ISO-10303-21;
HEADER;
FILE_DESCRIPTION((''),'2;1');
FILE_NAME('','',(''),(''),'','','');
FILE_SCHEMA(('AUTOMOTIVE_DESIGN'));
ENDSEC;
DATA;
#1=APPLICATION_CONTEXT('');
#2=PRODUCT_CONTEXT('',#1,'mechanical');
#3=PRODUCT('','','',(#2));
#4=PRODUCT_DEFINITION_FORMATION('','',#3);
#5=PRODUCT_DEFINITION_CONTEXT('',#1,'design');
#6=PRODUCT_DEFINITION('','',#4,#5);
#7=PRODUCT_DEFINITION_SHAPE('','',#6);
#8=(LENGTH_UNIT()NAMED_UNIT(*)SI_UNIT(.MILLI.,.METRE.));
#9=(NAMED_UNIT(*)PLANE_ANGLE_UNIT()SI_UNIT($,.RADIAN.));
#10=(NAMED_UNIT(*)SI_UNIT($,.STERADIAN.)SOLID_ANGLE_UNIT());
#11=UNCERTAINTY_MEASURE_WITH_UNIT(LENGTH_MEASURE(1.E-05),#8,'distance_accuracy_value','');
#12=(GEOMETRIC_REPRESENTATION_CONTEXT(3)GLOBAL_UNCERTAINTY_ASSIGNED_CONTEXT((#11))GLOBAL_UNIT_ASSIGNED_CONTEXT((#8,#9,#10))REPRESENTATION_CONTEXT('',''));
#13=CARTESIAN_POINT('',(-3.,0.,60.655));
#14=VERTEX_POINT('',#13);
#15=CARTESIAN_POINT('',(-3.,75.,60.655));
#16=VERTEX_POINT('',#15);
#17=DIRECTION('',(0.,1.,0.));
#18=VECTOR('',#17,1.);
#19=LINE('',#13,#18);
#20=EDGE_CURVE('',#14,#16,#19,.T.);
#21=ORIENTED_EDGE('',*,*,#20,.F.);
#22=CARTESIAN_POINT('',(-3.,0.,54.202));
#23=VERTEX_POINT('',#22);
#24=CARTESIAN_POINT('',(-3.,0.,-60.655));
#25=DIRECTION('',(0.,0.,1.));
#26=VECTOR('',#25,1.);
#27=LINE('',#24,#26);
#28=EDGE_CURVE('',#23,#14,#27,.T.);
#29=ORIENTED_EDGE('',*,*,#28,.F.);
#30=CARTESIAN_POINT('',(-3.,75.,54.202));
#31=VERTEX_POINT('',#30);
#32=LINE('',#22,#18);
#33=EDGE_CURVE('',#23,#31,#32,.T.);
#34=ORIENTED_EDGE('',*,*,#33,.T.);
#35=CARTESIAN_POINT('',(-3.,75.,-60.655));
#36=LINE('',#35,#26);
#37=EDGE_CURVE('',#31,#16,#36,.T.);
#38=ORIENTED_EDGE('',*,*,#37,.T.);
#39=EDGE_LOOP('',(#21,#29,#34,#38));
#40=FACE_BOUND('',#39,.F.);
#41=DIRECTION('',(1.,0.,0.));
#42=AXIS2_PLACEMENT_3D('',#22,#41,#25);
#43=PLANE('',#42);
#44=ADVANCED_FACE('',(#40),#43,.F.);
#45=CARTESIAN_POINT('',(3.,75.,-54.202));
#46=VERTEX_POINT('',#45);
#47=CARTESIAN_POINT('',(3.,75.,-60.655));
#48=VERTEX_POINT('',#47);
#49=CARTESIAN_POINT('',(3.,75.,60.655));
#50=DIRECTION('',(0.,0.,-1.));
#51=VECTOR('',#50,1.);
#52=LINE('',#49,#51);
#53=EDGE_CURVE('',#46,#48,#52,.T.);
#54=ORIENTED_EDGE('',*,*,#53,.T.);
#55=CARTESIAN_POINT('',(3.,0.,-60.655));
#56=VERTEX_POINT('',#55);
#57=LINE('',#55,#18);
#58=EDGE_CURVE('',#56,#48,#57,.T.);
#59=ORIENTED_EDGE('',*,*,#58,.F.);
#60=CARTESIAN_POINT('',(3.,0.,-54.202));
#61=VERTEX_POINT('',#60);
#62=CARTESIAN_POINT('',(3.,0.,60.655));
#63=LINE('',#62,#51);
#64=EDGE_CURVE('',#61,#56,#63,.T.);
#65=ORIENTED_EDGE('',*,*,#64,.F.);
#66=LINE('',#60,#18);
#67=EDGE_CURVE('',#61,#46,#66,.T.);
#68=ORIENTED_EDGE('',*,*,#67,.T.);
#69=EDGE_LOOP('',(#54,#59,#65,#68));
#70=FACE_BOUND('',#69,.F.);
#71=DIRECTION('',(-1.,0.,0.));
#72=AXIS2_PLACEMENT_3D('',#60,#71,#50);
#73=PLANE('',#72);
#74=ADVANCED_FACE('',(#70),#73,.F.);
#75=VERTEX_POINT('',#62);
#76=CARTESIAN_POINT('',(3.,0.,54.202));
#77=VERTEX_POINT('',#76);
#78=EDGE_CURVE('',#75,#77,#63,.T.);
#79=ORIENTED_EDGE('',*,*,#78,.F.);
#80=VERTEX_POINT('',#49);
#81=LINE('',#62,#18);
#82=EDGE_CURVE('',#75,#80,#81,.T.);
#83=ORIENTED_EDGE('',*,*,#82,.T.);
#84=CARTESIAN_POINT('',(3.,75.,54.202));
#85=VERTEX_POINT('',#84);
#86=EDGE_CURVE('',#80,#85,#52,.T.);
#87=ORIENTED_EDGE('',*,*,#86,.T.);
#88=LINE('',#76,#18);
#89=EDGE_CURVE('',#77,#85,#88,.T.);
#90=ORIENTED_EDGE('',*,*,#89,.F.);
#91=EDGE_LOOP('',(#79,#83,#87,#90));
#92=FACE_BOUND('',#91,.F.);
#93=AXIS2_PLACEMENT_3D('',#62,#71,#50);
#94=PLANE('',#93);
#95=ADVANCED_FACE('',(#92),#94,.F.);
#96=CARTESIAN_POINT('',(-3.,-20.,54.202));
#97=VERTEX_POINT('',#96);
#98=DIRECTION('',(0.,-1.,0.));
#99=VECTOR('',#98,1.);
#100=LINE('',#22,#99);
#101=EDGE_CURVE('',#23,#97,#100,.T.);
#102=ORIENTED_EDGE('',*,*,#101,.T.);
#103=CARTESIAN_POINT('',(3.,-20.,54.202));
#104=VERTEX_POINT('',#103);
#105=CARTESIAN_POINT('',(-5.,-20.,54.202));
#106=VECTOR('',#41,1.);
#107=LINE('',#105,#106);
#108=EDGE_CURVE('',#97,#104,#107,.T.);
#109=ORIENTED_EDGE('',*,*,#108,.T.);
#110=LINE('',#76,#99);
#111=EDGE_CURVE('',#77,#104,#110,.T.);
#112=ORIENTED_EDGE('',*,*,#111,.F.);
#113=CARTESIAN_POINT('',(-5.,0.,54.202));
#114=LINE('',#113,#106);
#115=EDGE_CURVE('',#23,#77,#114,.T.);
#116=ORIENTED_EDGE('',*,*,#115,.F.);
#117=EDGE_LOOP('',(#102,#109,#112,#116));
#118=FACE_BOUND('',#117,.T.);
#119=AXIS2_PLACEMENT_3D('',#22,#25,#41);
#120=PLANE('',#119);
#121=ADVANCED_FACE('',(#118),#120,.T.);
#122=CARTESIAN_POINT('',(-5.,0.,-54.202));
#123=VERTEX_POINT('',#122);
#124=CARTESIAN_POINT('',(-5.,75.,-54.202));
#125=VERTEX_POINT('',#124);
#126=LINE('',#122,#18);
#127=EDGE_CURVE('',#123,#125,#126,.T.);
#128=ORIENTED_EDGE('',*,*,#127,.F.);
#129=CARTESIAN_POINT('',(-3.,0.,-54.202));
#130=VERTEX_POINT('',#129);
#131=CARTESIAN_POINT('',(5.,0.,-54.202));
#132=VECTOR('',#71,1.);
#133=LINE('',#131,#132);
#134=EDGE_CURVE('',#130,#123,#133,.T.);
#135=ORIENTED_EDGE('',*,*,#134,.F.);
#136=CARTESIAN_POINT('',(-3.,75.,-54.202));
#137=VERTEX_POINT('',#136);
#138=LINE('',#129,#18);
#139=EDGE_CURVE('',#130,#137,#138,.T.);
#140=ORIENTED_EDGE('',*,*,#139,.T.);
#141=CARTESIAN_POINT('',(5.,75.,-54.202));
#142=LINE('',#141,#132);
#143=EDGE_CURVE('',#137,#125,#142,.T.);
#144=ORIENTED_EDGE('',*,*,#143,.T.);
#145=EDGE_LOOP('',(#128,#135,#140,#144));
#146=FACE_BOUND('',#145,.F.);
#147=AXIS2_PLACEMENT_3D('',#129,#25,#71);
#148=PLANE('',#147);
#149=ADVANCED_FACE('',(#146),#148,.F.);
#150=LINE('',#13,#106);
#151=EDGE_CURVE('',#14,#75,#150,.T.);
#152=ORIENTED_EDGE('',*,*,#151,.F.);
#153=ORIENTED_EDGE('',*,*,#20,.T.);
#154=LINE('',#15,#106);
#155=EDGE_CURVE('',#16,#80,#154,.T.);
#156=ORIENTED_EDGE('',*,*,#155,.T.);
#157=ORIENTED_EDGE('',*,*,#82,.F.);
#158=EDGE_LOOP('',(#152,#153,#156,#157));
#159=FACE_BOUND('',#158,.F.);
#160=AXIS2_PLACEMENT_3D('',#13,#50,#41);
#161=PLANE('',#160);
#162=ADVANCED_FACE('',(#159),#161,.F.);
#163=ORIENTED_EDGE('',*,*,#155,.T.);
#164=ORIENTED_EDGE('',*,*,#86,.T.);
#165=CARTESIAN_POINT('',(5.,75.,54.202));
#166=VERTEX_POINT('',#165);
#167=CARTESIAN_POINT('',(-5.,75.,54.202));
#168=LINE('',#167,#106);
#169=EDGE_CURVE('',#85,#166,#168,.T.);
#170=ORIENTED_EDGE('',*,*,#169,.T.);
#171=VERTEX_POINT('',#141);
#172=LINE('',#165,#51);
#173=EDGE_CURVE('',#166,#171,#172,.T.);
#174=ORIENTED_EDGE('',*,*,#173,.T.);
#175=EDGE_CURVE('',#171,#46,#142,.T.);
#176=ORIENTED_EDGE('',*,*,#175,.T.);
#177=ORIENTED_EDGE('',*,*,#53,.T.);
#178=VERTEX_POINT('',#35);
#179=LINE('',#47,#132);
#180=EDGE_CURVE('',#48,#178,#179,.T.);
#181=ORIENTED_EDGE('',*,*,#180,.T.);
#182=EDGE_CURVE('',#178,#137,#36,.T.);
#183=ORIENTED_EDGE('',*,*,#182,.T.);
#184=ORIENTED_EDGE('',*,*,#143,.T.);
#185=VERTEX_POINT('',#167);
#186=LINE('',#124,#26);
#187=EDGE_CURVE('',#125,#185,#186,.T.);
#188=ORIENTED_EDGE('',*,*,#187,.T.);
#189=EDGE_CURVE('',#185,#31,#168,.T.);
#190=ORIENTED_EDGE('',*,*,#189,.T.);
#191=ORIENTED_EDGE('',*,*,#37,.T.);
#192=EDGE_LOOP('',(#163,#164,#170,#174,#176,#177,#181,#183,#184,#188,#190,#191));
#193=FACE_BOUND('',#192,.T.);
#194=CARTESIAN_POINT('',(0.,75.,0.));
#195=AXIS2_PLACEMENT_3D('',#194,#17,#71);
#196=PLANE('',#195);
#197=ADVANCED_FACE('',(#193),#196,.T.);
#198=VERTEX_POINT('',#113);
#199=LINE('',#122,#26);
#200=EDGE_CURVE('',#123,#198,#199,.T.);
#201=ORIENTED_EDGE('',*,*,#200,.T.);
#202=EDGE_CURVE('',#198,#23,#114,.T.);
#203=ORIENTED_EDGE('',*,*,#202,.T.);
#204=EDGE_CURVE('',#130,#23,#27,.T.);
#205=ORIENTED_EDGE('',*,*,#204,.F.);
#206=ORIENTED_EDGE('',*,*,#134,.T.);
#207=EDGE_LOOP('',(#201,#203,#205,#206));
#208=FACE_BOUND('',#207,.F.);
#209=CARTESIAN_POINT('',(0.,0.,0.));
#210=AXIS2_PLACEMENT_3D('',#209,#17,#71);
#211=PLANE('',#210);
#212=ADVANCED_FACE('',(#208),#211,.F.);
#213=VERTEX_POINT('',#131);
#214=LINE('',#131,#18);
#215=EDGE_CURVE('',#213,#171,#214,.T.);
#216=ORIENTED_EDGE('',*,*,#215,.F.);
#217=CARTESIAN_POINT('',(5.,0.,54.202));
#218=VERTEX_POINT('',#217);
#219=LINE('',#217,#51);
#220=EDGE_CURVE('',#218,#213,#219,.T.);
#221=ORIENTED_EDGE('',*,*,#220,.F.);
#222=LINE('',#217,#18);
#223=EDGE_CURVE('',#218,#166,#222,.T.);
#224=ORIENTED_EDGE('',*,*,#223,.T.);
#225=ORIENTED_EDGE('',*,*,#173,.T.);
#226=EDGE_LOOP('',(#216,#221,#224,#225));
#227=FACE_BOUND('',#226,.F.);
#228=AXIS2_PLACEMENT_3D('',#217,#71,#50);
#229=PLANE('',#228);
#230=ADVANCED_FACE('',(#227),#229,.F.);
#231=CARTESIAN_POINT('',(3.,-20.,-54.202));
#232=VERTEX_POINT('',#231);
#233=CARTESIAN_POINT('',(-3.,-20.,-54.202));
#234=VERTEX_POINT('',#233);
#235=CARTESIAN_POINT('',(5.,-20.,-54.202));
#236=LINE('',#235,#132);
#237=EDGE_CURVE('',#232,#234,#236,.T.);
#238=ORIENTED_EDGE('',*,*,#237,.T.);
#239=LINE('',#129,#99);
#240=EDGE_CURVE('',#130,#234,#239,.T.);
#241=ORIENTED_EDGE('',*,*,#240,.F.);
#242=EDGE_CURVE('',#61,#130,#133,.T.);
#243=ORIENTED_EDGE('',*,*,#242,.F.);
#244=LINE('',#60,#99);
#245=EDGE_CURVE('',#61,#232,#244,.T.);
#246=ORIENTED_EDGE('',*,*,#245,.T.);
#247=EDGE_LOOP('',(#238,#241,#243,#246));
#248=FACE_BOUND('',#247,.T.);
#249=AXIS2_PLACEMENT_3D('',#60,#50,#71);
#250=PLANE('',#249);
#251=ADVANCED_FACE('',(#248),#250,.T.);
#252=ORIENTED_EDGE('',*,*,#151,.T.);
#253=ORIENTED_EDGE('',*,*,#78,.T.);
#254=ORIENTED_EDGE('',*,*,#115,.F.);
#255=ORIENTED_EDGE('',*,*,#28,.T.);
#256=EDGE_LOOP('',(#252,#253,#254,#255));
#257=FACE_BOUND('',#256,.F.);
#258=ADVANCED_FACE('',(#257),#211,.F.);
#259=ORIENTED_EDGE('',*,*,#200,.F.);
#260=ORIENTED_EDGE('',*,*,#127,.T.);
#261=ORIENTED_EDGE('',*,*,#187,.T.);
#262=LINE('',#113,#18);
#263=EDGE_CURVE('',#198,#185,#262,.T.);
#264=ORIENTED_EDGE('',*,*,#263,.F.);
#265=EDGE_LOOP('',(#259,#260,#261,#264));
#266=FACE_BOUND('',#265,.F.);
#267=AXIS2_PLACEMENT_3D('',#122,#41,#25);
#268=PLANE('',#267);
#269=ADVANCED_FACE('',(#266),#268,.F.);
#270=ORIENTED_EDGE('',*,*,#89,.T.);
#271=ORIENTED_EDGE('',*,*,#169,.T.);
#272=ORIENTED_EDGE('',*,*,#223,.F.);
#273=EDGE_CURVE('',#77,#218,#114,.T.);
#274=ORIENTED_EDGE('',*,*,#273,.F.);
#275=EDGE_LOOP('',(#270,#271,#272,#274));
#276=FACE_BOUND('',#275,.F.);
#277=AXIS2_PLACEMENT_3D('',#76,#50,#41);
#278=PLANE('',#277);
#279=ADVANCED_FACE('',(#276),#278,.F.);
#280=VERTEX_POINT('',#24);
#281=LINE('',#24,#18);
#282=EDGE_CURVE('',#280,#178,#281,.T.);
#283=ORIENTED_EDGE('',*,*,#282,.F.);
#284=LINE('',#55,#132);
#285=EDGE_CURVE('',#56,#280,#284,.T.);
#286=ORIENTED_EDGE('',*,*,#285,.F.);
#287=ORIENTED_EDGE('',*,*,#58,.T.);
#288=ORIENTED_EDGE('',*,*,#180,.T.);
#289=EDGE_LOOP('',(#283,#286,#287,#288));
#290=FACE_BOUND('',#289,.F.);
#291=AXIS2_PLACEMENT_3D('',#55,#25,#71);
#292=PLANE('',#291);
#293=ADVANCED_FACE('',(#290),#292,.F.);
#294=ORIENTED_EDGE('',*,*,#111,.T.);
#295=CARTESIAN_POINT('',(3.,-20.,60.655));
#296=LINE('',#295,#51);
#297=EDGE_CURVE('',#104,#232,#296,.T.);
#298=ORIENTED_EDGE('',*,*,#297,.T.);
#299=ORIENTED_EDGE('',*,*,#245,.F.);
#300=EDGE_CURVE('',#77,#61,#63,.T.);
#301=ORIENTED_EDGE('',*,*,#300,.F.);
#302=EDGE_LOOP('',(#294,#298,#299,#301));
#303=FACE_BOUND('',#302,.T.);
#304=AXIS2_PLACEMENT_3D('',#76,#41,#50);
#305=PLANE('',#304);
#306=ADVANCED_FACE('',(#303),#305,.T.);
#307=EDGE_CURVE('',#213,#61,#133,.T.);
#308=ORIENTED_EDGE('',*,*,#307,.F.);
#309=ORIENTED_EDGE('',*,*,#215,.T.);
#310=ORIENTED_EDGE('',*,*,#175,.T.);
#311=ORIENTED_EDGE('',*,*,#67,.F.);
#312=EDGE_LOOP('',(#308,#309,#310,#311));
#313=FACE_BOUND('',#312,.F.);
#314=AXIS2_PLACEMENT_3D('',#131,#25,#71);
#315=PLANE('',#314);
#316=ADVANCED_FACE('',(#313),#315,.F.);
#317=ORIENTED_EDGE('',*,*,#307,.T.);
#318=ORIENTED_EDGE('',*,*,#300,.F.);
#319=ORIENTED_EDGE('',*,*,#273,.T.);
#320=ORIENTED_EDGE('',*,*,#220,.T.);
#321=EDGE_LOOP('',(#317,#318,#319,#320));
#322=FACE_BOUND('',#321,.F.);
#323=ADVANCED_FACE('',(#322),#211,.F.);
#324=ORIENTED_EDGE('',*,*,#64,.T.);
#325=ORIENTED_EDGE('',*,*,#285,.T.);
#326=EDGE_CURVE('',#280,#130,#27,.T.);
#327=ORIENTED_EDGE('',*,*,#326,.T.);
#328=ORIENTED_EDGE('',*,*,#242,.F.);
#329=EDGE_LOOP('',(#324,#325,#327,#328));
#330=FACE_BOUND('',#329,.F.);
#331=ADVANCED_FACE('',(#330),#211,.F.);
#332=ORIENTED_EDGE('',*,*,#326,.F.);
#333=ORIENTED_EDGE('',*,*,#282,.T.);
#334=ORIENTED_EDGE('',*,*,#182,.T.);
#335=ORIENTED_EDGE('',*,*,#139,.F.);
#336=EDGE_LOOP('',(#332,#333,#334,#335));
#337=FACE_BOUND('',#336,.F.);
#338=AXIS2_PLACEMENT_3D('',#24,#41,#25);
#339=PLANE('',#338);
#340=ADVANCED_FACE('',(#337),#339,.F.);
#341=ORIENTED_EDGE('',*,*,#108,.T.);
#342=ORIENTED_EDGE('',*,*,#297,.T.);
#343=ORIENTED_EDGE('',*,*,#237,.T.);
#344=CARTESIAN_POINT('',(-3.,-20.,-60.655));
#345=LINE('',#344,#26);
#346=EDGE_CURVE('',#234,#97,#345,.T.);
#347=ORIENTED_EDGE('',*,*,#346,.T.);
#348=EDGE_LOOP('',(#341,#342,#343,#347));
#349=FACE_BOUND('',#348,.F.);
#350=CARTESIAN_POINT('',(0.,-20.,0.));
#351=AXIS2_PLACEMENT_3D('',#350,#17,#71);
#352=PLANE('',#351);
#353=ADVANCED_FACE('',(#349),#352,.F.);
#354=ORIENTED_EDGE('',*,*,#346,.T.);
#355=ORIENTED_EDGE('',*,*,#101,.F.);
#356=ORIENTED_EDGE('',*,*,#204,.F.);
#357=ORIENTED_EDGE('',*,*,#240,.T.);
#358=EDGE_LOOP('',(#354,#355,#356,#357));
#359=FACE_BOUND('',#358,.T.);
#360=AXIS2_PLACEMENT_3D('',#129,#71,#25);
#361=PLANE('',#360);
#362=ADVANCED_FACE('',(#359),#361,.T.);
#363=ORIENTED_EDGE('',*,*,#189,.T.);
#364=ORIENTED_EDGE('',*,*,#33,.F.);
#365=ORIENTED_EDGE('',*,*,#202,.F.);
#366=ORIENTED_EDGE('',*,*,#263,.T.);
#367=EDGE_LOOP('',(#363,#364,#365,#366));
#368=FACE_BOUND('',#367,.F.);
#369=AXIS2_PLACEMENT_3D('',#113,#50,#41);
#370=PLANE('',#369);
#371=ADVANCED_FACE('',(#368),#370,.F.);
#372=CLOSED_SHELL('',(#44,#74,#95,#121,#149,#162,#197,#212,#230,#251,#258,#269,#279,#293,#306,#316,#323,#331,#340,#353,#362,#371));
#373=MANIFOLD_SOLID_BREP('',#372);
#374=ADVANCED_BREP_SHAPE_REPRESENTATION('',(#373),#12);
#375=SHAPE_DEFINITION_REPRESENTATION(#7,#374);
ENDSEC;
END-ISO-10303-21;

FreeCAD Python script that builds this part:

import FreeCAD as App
import Part
import Sketcher

V = App.Vector

doc = App.newDocument("Part")
body = doc.addObject("PartDesign::Body", "Body")

# Sketch on XZ plane
sketch1 = body.newObject("Sketcher::SketchObject", "Sketch")
sketch1.AttachmentSupport = (doc.getObject("XZ_Plane"), [""])
sketch1.MapMode = "FlatFace"
sketch1.addGeometry(Part.LineSegment(V(-5, -54.2, 0), V(-5, 54.2, 0)), False)
sketch1.addGeometry(Part.LineSegment(V(-5, 54.2, 0), V(-3, 54.2, 0)), False)
sketch1.addGeometry(Part.LineSegment(V(-3, 54.2, 0), V(-3, 60.7, 0)), False)
sketch1.addGeometry(Part.LineSegment(V(-3, 60.7, 0), V(3, 60.7, 0)), False)
sketch1.addGeometry(Part.LineSegment(V(3, 60.7, 0), V(3, 54.2, 0)), False)
sketch1.addGeometry(Part.LineSegment(V(3, 54.2, 0), V(5, 54.2, 0)), False)
sketch1.addGeometry(Part.LineSegment(V(5, 54.2, 0), V(5, -54.2, 0)), False)
sketch1.addGeometry(Part.LineSegment(V(5, -54.2, 0), V(3, -54.2, 0)), False)
sketch1.addGeometry(Part.LineSegment(V(3, -54.2, 0), V(3, -60.7, 0)), False)
sketch1.addGeometry(Part.LineSegment(V(3, -60.7, 0), V(-3, -60.7, 0)), False)
sketch1.addGeometry(Part.LineSegment(V(-3, -60.7, 0), V(-3, -54.2, 0)), False)
sketch1.addGeometry(Part.LineSegment(V(-3, -54.2, 0), V(-5, -54.2, 0)), False)
sketch1.addConstraint(Sketcher.Constraint("Coincident", 0, 2, 1, 1))
sketch1.addConstraint(Sketcher.Constraint("Coincident", 1, 2, 2, 1))
sketch1.addConstraint(Sketcher.Constraint("Coincident", 2, 2, 3, 1))
sketch1.addConstraint(Sketcher.Constraint("Coincident", 3, 2, 4, 1))
sketch1.addConstraint(Sketcher.Constraint("Coincident", 4, 2, 5, 1))
sketch1.addConstraint(Sketcher.Constraint("Coincident", 5, 2, 6, 1))
sketch1.addConstraint(Sketcher.Constraint("Coincident", 6, 2, 7, 1))
sketch1.addConstraint(Sketcher.Constraint("Coincident", 7, 2, 8, 1))
sketch1.addConstraint(Sketcher.Constraint("Coincident", 8, 2, 9, 1))
sketch1.addConstraint(Sketcher.Constraint("Coincident", 9, 2, 10, 1))
sketch1.addConstraint(Sketcher.Constraint("Coincident", 10, 2, 11, 1))
sketch1.addConstraint(Sketcher.Constraint("Coincident", 11, 2, 0, 1))
sketch1.addConstraint(Sketcher.Constraint("Vertical", 0))
sketch1.addConstraint(Sketcher.Constraint("Horizontal", 1))
sketch1.addConstraint(Sketcher.Constraint("Vertical", 2))
sketch1.addConstraint(Sketcher.Constraint("Horizontal", 3))
sketch1.addConstraint(Sketcher.Constraint("Vertical", 4))
sketch1.addConstraint(Sketcher.Constraint("Horizontal", 5))
sketch1.addConstraint(Sketcher.Constraint("Vertical", 6))
sketch1.addConstraint(Sketcher.Constraint("Horizontal", 7))
sketch1.addConstraint(Sketcher.Constraint("Vertical", 8))
sketch1.addConstraint(Sketcher.Constraint("Horizontal", 9))
sketch1.addConstraint(Sketcher.Constraint("Vertical", 10))
sketch1.addConstraint(Sketcher.Constraint("Horizontal", 11))
sketch1.addConstraint(Sketcher.Constraint("Symmetric", 0, 2, 6, 2, -1, 1))
sketch1.addConstraint(Sketcher.Constraint("Symmetric", 2, 2, 8, 2, -1, 1))
sketch1.addConstraint(Sketcher.Constraint("Symmetric", 4, 2, 10, 2, -1, 1))
sketch1.addConstraint(Sketcher.Constraint("Symmetric", 1, 2, 4, 2, -2))
sketch1.addConstraint(Sketcher.Constraint("DistanceX", 3, 1, 3, 2, 6.0))
sketch1.addConstraint(Sketcher.Constraint("DistanceX", 0, 2, 5, 2, 10.0))
sketch1.addConstraint(Sketcher.Constraint("DistanceY", 0, 1, 0, 2, 108.404))
sketch1.addConstraint(Sketcher.Constraint("DistanceY", 2, 1, 2, 2, 6.453))
pad1 = body.newObject("PartDesign::Pad", "Pad")
pad1.Profile = sketch1
pad1.Length = 75
pad1.Reversed = True

# Sketch on XZ plane
sketch2 = body.newObject("Sketcher::SketchObject", "Sketch001")
sketch2.AttachmentSupport = (doc.getObject("XZ_Plane"), [""])
sketch2.MapMode = "FlatFace"
sketch2.addGeometry(Part.LineSegment(V(-3, -54, 0), V(-3, 54, 0)), False)
sketch2.addGeometry(Part.LineSegment(V(-3, 54, 0), V(3, 54, 0)), False)
sketch2.addGeometry(Part.LineSegment(V(3, 54, 0), V(3, -54, 0)), False)
sketch2.addGeometry(Part.LineSegment(V(3, -54, 0), V(-3, -54, 0)), False)
sketch2.addConstraint(Sketcher.Constraint("Coincident", 0, 2, 1, 1))
sketch2.addConstraint(Sketcher.Constraint("Coincident", 1, 2, 2, 1))
sketch2.addConstraint(Sketcher.Constraint("Coincident", 2, 2, 3, 1))
sketch2.addConstraint(Sketcher.Constraint("Coincident", 3, 2, 0, 1))
sketch2.addConstraint(Sketcher.Constraint("Vertical", 0))
sketch2.addConstraint(Sketcher.Constraint("Horizontal", 1))
sketch2.addConstraint(Sketcher.Constraint("Vertical", 2))
sketch2.addConstraint(Sketcher.Constraint("Horizontal", 3))
sketch2.addConstraint(Sketcher.Constraint("Symmetric", 0, 2, 2, 2, -1, 1))
sketch2.addConstraint(Sketcher.Constraint("DistanceX", 1, 1, 1, 2, 6.0))
sketch2.addConstraint(Sketcher.Constraint("DistanceY", 0, 1, 0, 2, 108.404))
pad2 = body.newObject("PartDesign::Pad", "Pad001")
pad2.Profile = sketch2
pad2.Length = 20

doc.recompute()
